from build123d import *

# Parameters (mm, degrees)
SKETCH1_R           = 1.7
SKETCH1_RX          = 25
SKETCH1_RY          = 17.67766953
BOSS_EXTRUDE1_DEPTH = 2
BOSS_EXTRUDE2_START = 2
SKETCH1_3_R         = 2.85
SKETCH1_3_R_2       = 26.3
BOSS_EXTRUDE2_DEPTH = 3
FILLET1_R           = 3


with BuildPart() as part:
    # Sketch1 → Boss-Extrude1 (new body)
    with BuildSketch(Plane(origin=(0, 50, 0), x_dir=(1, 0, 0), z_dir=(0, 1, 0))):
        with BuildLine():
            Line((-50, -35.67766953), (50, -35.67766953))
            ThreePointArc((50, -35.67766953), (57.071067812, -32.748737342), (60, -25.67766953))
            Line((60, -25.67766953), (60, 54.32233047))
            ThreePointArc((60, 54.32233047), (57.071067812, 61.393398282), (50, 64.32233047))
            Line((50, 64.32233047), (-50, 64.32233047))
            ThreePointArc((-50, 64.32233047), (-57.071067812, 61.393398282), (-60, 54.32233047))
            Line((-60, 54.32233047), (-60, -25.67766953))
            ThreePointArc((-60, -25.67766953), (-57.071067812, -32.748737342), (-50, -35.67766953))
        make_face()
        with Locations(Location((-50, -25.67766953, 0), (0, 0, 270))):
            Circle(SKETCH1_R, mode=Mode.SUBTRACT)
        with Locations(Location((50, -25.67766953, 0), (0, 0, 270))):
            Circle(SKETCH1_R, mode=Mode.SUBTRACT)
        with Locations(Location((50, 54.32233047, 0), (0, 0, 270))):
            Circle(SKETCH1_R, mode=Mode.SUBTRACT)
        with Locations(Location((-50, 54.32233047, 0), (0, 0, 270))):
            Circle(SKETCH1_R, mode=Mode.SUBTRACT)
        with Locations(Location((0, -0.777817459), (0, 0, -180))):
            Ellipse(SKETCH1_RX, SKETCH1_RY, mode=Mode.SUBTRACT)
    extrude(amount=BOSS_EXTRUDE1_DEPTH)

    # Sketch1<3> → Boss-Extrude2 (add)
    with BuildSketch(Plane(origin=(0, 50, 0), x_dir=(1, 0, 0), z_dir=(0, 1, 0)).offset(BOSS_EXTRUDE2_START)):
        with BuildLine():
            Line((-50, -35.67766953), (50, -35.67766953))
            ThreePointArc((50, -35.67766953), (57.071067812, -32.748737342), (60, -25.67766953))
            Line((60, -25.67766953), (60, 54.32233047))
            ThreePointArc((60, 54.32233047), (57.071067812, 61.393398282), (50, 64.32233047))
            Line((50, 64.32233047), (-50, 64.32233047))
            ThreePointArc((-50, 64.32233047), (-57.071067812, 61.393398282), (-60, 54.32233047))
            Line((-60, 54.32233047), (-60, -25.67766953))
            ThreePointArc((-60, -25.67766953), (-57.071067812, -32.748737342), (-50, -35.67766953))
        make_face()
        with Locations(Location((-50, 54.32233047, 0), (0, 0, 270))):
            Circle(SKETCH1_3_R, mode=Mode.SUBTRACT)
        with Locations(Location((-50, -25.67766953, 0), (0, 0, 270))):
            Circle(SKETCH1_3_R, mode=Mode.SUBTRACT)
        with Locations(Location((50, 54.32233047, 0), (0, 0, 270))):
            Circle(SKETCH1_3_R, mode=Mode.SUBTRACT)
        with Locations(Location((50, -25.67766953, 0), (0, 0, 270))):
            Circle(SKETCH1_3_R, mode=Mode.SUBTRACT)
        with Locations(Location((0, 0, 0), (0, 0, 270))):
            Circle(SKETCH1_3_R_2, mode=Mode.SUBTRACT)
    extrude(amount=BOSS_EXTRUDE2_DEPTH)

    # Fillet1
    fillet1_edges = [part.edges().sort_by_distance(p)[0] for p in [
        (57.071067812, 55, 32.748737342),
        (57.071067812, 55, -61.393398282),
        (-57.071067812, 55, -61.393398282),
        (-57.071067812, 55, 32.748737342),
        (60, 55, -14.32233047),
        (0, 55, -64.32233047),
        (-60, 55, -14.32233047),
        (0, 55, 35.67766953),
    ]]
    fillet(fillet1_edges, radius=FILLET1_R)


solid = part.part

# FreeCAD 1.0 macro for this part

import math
import FreeCAD as App
import Part
import Sketcher

V = App.Vector
Q = App.Units.Quantity


def edges_at(feature, points):
    """Names of the edges that pass closest to the given points."""
    edges = feature.Shape.Edges
    near = lambda p: min(range(len(edges)), key=lambda i: edges[i].distToShape(Part.Vertex(*p))[0])
    return sorted({f"Edge{near(p) + 1}" for p in points})

doc = App.newDocument("Part")
body = doc.addObject("PartDesign::Body", "Body")

sketch1 = doc.addObject("Sketcher::SketchObject", "Sketch")
body.addObject(sketch1)
sketch1.AttachmentSupport = (doc.XZ_Plane, [""])
sketch1.MapMode = "FlatFace"
sketch1.AttachmentOffset = App.Placement(V(0, 0, -50), App.Rotation())
sketch1.addGeometry([
    Part.LineSegment(V(-50, 35.67767, 0), V(50, 35.67767, 0)),
    Part.ArcOfCircle(Part.Circle(V(50, 25.67767, 0), V(0, 0, 1), 10), math.radians(0), math.radians(90)),
    Part.LineSegment(V(60, 25.67767, 0), V(60, -54.32233, 0)),
    Part.ArcOfCircle(Part.Circle(V(50, -54.32233, 0), V(0, 0, 1), 10), math.radians(-90), math.radians(0)),
    Part.LineSegment(V(50, -64.32233, 0), V(-50, -64.32233, 0)),
    Part.ArcOfCircle(Part.Circle(V(-50, -54.32233, 0), V(0, 0, 1), 10), math.radians(180), math.radians(270)),
    Part.LineSegment(V(-60, -54.32233, 0), V(-60, 25.67767, 0)),
    Part.ArcOfCircle(Part.Circle(V(-50, 25.67767, 0), V(0, 0, 1), 10), math.radians(90), math.radians(180)),
    Part.Circle(V(-50, 25.67767, 0), V(0, 0, 1), 1.7),
    Part.Circle(V(50, 25.67767, 0), V(0, 0, 1), 1.7),
    Part.Ellipse(V(-25, 0.777817, 0), V(0, -16.899852, 0), V(0, 0.777817, 0)),
    Part.Circle(V(-50, -54.32233, 0), V(0, 0, 1), 1.7),
    Part.Circle(V(50, -54.32233, 0), V(0, 0, 1), 1.7),
], False)
sketch1.addConstraint([
    Sketcher.Constraint("Block", 10),
    Sketcher.Constraint("Tangent", 0, 2, 1, 2),
    Sketcher.Constraint("Tangent", 1, 1, 2, 1),
    Sketcher.Constraint("Tangent", 2, 2, 3, 2),
    Sketcher.Constraint("Tangent", 3, 1, 4, 1),
    Sketcher.Constraint("Tangent", 4, 2, 5, 2),
    Sketcher.Constraint("Tangent", 5, 1, 6, 1),
    Sketcher.Constraint("Tangent", 6, 2, 7, 2),
    Sketcher.Constraint("Tangent", 7, 1, 0, 1),
    Sketcher.Constraint("Horizontal", 0),
    Sketcher.Constraint("Vertical", 2),
    Sketcher.Constraint("Horizontal", 4),
    Sketcher.Constraint("Vertical", 6),
    Sketcher.Constraint("Coincident", 8, 3, 7, 3),
    Sketcher.Constraint("Coincident", 9, 3, 1, 3),
    Sketcher.Constraint("Coincident", 11, 3, 5, 3),
    Sketcher.Constraint("Coincident", 12, 3, 3, 3),
    Sketcher.Constraint("Equal", 1, 3),
    Sketcher.Constraint("Equal", 3, 5),
    Sketcher.Constraint("Equal", 5, 7),
    Sketcher.Constraint("Equal", 8, 9),
    Sketcher.Constraint("Equal", 9, 11),
    Sketcher.Constraint("Equal", 11, 12),
    Sketcher.Constraint("Radius", 1, Q("10 mm")),
    Sketcher.Constraint("Diameter", 8, Q("3.4 mm")),
    Sketcher.Constraint("DistanceX", 0, 1, 0, 2, Q("100 mm")),
    Sketcher.Constraint("DistanceY", 2, 2, 2, 1, Q("80 mm")),
    Sketcher.Constraint("DistanceX", -1, 1, 1, 3, Q("50 mm")),
    Sketcher.Constraint("DistanceY", -1, 1, 1, 3, Q("25.67767 mm")),
])
pad1 = doc.addObject("PartDesign::Pad", "Pad")
body.addObject(pad1)
pad1.Profile = sketch1
pad1.Length = 2
pad1.Reversed = True

sketch2 = doc.addObject("Sketcher::SketchObject", "Sketch001")
body.addObject(sketch2)
sketch2.AttachmentSupport = (doc.XZ_Plane, [""])
sketch2.MapMode = "FlatFace"
sketch2.AttachmentOffset = App.Placement(V(0, 0, -52), App.Rotation())
sketch2.addGeometry([
    Part.LineSegment(V(-50, 35.7, 0), V(50, 35.7, 0)),
    Part.ArcOfCircle(Part.Circle(V(50, 25.7, 0), V(0, 0, 1), 10), math.radians(0), math.radians(90)),
    Part.LineSegment(V(60, 25.7, 0), V(60, -54.3, 0)),
    Part.ArcOfCircle(Part.Circle(V(50, -54.3, 0), V(0, 0, 1), 10), math.radians(-90), math.radians(0)),
    Part.LineSegment(V(50, -64.3, 0), V(-50, -64.3, 0)),
    Part.ArcOfCircle(Part.Circle(V(-50, -54.3, 0), V(0, 0, 1), 10), math.radians(180), math.radians(270)),
    Part.LineSegment(V(-60, -54.3, 0), V(-60, 25.7, 0)),
    Part.ArcOfCircle(Part.Circle(V(-50, 25.7, 0), V(0, 0, 1), 10), math.radians(90), math.radians(180)),
    Part.Circle(V(-50, 25.7, 0), V(0, 0, 1), 2.9),
    Part.Circle(V(50, 25.7, 0), V(0, 0, 1), 2.9),
    Part.Circle(V(0, 0, 0), V(0, 0, 1), 26.3),
    Part.Circle(V(-50, -54.3, 0), V(0, 0, 1), 2.9),
    Part.Circle(V(50, -54.3, 0), V(0, 0, 1), 2.9),
], False)
sketch2.addConstraint([
    Sketcher.Constraint("Tangent", 0, 2, 1, 2),
    Sketcher.Constraint("Tangent", 1, 1, 2, 1),
    Sketcher.Constraint("Tangent", 2, 2, 3, 2),
    Sketcher.Constraint("Tangent", 3, 1, 4, 1),
    Sketcher.Constraint("Tangent", 4, 2, 5, 2),
    Sketcher.Constraint("Tangent", 5, 1, 6, 1),
    Sketcher.Constraint("Tangent", 6, 2, 7, 2),
    Sketcher.Constraint("Tangent", 7, 1, 0, 1),
    Sketcher.Constraint("Horizontal", 0),
    Sketcher.Constraint("Vertical", 2),
    Sketcher.Constraint("Horizontal", 4),
    Sketcher.Constraint("Vertical", 6),
    Sketcher.Constraint("Coincident", 10, 3, -1, 1),
    Sketcher.Constraint("Coincident", 8, 3, 7, 3),
    Sketcher.Constraint("Coincident", 9, 3, 1, 3),
    Sketcher.Constraint("Coincident", 11, 3, 5, 3),
    Sketcher.Constraint("Coincident", 12, 3, 3, 3),
    Sketcher.Constraint("Equal", 1, 3),
    Sketcher.Constraint("Equal", 3, 5),
    Sketcher.Constraint("Equal", 5, 7),
    Sketcher.Constraint("Equal", 8, 9),
    Sketcher.Constraint("Equal", 9, 11),
    Sketcher.Constraint("Equal", 11, 12),
    Sketcher.Constraint("Radius", 1, Q("10 mm")),
    Sketcher.Constraint("Diameter", 8, Q("5.7 mm")),
    Sketcher.Constraint("Diameter", 10, Q("52.6 mm")),
    Sketcher.Constraint("DistanceX", 0, 1, 0, 2, Q("100 mm")),
    Sketcher.Constraint("DistanceY", 2, 2, 2, 1, Q("80 mm")),
    Sketcher.Constraint("DistanceX", -1, 1, 1, 3, Q("50 mm")),
    Sketcher.Constraint("DistanceY", -1, 1, 1, 3, Q("25.67767 mm")),
])
pad2 = doc.addObject("PartDesign::Pad", "Pad001")
body.addObject(pad2)
pad2.Profile = sketch2
pad2.Length = 3
pad2.Reversed = True
doc.recompute()

fillet = doc.addObject("PartDesign::Fillet", "Fillet")
body.addObject(fillet)
fillet.Base = (pad2, edges_at(pad2, [
    (57.071, 55, 32.749),
    (57.071, 55, -61.393),
    (-57.071, 55, -61.393),
    (-57.071, 55, 32.749),
    (60, 55, -14.322),
    (0, 55, -64.322),
    (-60, 55, -14.322),
    (0, 55, 35.678),
]))
fillet.Radius = 3

doc.recompute()
